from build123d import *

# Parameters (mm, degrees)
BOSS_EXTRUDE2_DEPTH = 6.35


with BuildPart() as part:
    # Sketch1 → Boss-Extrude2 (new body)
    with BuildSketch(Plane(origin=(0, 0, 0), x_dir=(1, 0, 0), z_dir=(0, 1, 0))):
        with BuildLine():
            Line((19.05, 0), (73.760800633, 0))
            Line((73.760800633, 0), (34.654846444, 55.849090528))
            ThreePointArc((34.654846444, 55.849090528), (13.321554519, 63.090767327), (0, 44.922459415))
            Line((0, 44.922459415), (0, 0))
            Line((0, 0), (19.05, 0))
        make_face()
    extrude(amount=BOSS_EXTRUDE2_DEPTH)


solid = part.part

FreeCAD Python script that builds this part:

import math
import FreeCAD as App
import Part
import Sketcher
from FreeCAD import Vector
Q = App.Units.Quantity

doc = App.newDocument("Part")
body = doc.addObject("PartDesign::Body", "Body")

sketch1 = body.newObject("Sketcher::SketchObject", "Sketch")
sketch1.AttachmentSupport = (doc.getObject("XZ_Plane"), [""])
sketch1.MapMode = "FlatFace"
sketch1.addGeometry(Part.LineSegment(Vector(74, 0, 0), Vector(35, -56, 0)), False)
sketch1.addGeometry(Part.ArcOfCircle(Part.Circle(Vector(19, -45, 0), Vector(0, 0, 1), 19), math.radians(180), math.radians(325)), False)
sketch1.addGeometry(Part.LineSegment(Vector(0, -45, 0), Vector(0, 0, 0)), False)
sketch1.addGeometry(Part.LineSegment(Vector(0, 0, 0), Vector(74, 0, 0)), False)
sketch1.addConstraint(Sketcher.Constraint("Tangent", 0, 2, 1, 2))
sketch1.addConstraint(Sketcher.Constraint("Tangent", 1, 1, 2, 1))
sketch1.addConstraint(Sketcher.Constraint("Coincident", 2, 2, 3, 1))
sketch1.addConstraint(Sketcher.Constraint("Coincident", 3, 2, 0, 1))
sketch1.addConstraint(Sketcher.Constraint("Vertical", 2))
sketch1.addConstraint(Sketcher.Constraint("Horizontal", 3))
sketch1.addConstraint(Sketcher.Constraint("Coincident", 2, 2, -1, 1))
sketch1.addConstraint(Sketcher.Constraint("Radius", 1, Q("0.75 in")))
sketch1.addConstraint(Sketcher.Constraint("Angle", 0, Q("-125 deg")))
sketch1.addConstraint(Sketcher.Constraint("DistanceX", 3, 1, 3, 2, 73.760801))
pad1 = body.newObject("PartDesign::Pad", "Pad")
pad1.Profile = sketch1
pad1.Length = Q("0.25 in")
pad1.Reversed = True

doc.recompute()
